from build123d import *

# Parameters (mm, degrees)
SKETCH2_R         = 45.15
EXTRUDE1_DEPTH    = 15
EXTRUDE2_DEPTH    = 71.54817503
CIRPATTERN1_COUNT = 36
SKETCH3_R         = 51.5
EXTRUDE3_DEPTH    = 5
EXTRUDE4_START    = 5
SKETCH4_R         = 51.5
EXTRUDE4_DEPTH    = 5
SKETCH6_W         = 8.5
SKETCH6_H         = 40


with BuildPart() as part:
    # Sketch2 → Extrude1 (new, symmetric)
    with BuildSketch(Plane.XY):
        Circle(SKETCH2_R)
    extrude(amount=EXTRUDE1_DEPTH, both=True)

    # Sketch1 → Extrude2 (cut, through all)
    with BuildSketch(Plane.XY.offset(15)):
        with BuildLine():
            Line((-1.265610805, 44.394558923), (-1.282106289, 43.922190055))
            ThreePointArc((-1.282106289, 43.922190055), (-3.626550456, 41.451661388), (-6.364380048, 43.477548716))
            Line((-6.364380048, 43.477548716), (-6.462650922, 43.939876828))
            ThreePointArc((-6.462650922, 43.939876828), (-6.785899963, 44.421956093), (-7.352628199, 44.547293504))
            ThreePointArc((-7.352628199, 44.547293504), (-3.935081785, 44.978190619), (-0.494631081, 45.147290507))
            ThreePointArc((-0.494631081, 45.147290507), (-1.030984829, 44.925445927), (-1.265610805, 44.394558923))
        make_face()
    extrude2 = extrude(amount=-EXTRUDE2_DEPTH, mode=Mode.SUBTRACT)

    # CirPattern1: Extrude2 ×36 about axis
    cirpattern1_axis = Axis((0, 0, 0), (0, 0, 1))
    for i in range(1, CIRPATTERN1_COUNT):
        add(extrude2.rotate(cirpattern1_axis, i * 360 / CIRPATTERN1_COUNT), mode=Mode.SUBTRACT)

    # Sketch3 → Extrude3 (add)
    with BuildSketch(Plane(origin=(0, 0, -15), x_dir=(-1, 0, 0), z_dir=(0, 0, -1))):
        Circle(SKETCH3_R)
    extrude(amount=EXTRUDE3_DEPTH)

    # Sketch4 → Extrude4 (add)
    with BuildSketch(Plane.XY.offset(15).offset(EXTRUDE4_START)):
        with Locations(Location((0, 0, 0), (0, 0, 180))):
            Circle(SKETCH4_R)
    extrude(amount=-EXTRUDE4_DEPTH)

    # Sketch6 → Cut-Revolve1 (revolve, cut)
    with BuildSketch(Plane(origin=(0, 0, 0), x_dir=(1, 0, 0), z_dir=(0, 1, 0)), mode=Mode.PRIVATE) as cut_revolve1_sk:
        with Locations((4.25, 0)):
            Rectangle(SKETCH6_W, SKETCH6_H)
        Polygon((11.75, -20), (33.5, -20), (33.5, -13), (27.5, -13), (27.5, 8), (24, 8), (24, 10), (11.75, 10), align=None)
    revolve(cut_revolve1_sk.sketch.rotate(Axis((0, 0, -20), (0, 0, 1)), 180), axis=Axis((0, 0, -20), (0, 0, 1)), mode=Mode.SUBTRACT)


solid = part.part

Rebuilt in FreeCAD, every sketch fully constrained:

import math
import FreeCAD as App
import Part
import Sketcher
from FreeCAD import Vector
Q = App.Units.Quantity


def add_polygon(sketch, points):
    """Adds a closed chain of lines whose ends are joined by coincident constraints."""
    first, n = sketch.GeometryCount, len(points)
    for a, b in zip(points, points[1:] + points[:1]):
        sketch.addGeometry(Part.LineSegment(App.Vector(*a, 0), App.Vector(*b, 0)), False)
    for i in range(n):
        sketch.addConstraint(Sketcher.Constraint("Coincident", first + i, 2, first + (i + 1) % n, 1))

doc = App.newDocument("Part")
params = doc.addObject("Spreadsheet::Sheet", "Params")
for row, (alias, value) in enumerate([
    ("sketch1_diameter", "90.3 mm"),
    ("pad1_length", "30 mm"),
    ("sketch2_radius", "0.78 mm"),
    ("sketch2_radius2", "45.15 mm"),
    ("sketch2_radius3", "2.57 mm"),
    ("sketch3_diameter", "103 mm"),
    ("pad2_length", "5 mm"),
    ("sketch4_diameter", "103 mm"),
    ("pad3_length", "5 mm"),
    ("sketch5_width", "6 mm"),
    ("sketch5_height", "40 mm"),
    ("sketch5_height2", "7 mm"),
    ("sketch5_height3", "21 mm"),
    ("sketch5_height4", "2 mm"),
    ("groove_angle", "360 deg"),
], start=1):
    params.set(f"A{row}", alias)
    params.set(f"B{row}", "=" + value)
    params.setAlias(f"B{row}", alias)

body = doc.addObject("PartDesign::Body", "Body")

sketch1 = body.newObject("Sketcher::SketchObject", "Sketch")
sketch1.AttachmentSupport = (doc.getObject("XY_Plane"), [""])
sketch1.MapMode = "FlatFace"
sketch1.addGeometry(Part.Circle(Vector(0, 0, 0), Vector(0, 0, 1), 45.15), False)
sketch1.addConstraint([
    Sketcher.Constraint("Coincident", 0, 3, -1, 1),
    Sketcher.Constraint("Diameter", 0, 90.3),
])
sketch1.setExpression("Constraints[1]", "Params.sketch1_diameter")
pad1 = body.newObject("PartDesign::Pad", "Pad")
pad1.Profile = sketch1
pad1.setExpression("Length", "Params.pad1_length")
pad1.Midplane = True

sketch2 = body.newObject("Sketcher::SketchObject", "Sketch001")
sketch2.AttachmentSupport = (doc.getObject("XY_Plane"), [""])
sketch2.MapMode = "FlatFace"
sketch2.AttachmentOffset = App.Placement(Vector(0, 0, 15), App.Rotation())
sketch2.addGeometry([
    Part.LineSegment(Vector(-1.282106, 43.92219, 0), Vector(-1.265611, 44.394559, 0)),
    Part.ArcOfCircle(Part.Circle(Vector(-0.486086, 44.367337, 0), Vector(0, 0, 1), 0.78), math.radians(90.627704), math.radians(178)),
    Part.ArcOfCircle(Part.Circle(Vector(0, 0, 0), Vector(0, 0, 1), 45.15), math.radians(90.627704), math.radians(99.372296)),
    Part.ArcOfCircle(Part.Circle(Vector(-7.225606, 43.777706, 0), Vector(0, 0, 1), 0.78), math.radians(12), math.radians(99.372296)),
    Part.LineSegment(Vector(-6.462651, 43.939877, 0), Vector(-6.36438, 43.477549, 0)),
    Part.ArcOfCircle(Part.Circle(Vector(-3.850541, 44.011882, 0), Vector(0, 0, 1), 2.57), math.radians(-168), math.radians(-2)),
], False)
sketch2.addConstraint([
    Sketcher.Constraint("Tangent", 0, 2, 1, 2),
    Sketcher.Constraint("Tangent", 1, 1, 2, 1),
    Sketcher.Constraint("Tangent", 2, 2, 3, 2),
    Sketcher.Constraint("Tangent", 3, 1, 4, 1),
    Sketcher.Constraint("Tangent", 4, 2, 5, 1),
    Sketcher.Constraint("Tangent", 5, 2, 0, 1),
    Sketcher.Constraint("Coincident", 2, 3, -1, 1),
    Sketcher.Constraint("Equal", 1, 3),
    Sketcher.Constraint("Equal", 0, 4),
    Sketcher.Constraint("Angle", 0, Q("88 deg")),
    Sketcher.Constraint("Angle", 4, Q("-78 deg")),
    Sketcher.Constraint("Radius", 1, 0.78),
    Sketcher.Constraint("Radius", 2, 45.15),
    Sketcher.Constraint("Radius", 5, 2.57),
    Sketcher.Constraint("DistanceY", 5, 2, 1, 1, 1.2251),
])
sketch2.setExpression("Constraints[11]", "Params.sketch2_radius")
sketch2.setExpression("Constraints[12]", "Params.sketch2_radius2")
sketch2.setExpression("Constraints[13]", "Params.sketch2_radius3")
pocket1 = body.newObject("PartDesign::Pocket", "Pocket")
pocket1.Profile = sketch2
pocket1.Type = "ThroughAll"
doc.recompute()

polarpattern = body.newObject("PartDesign::PolarPattern", "PolarPattern")
polarpattern.Originals = [pocket1]
polarpattern.Axis = (doc.getObject("Z_Axis"), [""])
polarpattern.Angle = 360
polarpattern.Occurrences = 36
body.Tip = polarpattern

sketch3 = body.newObject("Sketcher::SketchObject", "Sketch002")
sketch3.AttachmentSupport = (doc.getObject("XY_Plane"), [""])
sketch3.MapMode = "FlatFace"
sketch3.AttachmentOffset = App.Placement(Vector(0, 0, -15), App.Rotation())
sketch3.addGeometry(Part.Circle(Vector(0, 0, 0), Vector(0, 0, 1), 51.5), False)
sketch3.addConstraint([
    Sketcher.Constraint("Coincident", 0, 3, -1, 1),
    Sketcher.Constraint("Diameter", 0, 103.0),
])
sketch3.setExpression("Constraints[1]", "Params.sketch3_diameter")
pad2 = body.newObject("PartDesign::Pad", "Pad001")
pad2.Profile = sketch3
pad2.setExpression("Length", "Params.pad2_length")
pad2.Reversed = True

sketch4 = body.newObject("Sketcher::SketchObject", "Sketch003")
sketch4.AttachmentSupport = (doc.getObject("XY_Plane"), [""])
sketch4.MapMode = "FlatFace"
sketch4.AttachmentOffset = App.Placement(Vector(0, 0, 20), App.Rotation())
sketch4.addGeometry(Part.Circle(Vector(0, 0, 0), Vector(0, 0, 1), 51.5), False)
sketch4.addConstraint([
    Sketcher.Constraint("Coincident", 0, 3, -1, 1),
    Sketcher.Constraint("Diameter", 0, 103.0),
])
sketch4.setExpression("Constraints[1]", "Params.sketch4_diameter")
pad3 = body.newObject("PartDesign::Pad", "Pad002")
pad3.Profile = sketch4
pad3.setExpression("Length", "Params.pad3_length")
pad3.Reversed = True

sketch5 = body.newObject("Sketcher::SketchObject", "Sketch004")
sketch5.AttachmentSupport = (doc.getObject("XZ_Plane"), [""])
sketch5.MapMode = "FlatFace"
add_polygon(sketch5, [(0, -20), (0, 20), (8.5, 20), (8.5, -20)])
add_polygon(sketch5, [(11.75, 20), (33.5, 20), (33.5, 13), (27.5, 13), (27.5, -8), (24, -8), (24, -10), (11.75, -10)])
sketch5.addConstraint([
    Sketcher.Constraint("Vertical", 0),
    Sketcher.Constraint("Horizontal", 1),
    Sketcher.Constraint("Vertical", 2),
    Sketcher.Constraint("Horizontal", 3),
    Sketcher.Constraint("Horizontal", 4),
    Sketcher.Constraint("Vertical", 5),
    Sketcher.Constraint("Horizontal", 6),
    Sketcher.Constraint("Vertical", 7),
    Sketcher.Constraint("Horizontal", 8),
    Sketcher.Constraint("Vertical", 9),
    Sketcher.Constraint("Horizontal", 10),
    Sketcher.Constraint("Vertical", 11),
    Sketcher.Constraint("Symmetric", 0, 2, 3, 2, -1, 1),
    Sketcher.Constraint("Horizontal", 1, 2, 4, 2),
    Sketcher.Constraint("DistanceX", 6, 2, 6, 1, 6.0),
    Sketcher.Constraint("DistanceY", 0, 1, 0, 2, 40.0),
    Sketcher.Constraint("DistanceY", 5, 2, 5, 1, 7.0),
    Sketcher.Constraint("DistanceY", 7, 2, 7, 1, 21.0),
    Sketcher.Constraint("DistanceY", 9, 2, 9, 1, 2.0),
    Sketcher.Constraint("DistanceX", 1, 1, 1, 2, 8.5),
    Sketcher.Constraint("DistanceX", 8, 2, 8, 1, 3.5),
    Sketcher.Constraint("DistanceX", -1, 1, 8, 2, 24.0),
    Sketcher.Constraint("DistanceX", 4, 1, 4, 2, 21.75),
])
sketch5.setExpression("Constraints[26]", "Params.sketch5_width")
sketch5.setExpression("Constraints[27]", "Params.sketch5_height")
sketch5.setExpression("Constraints[28]", "Params.sketch5_height2")
sketch5.setExpression("Constraints[29]", "Params.sketch5_height3")
sketch5.setExpression("Constraints[30]", "Params.sketch5_height4")
groove = body.newObject("PartDesign::Groove", "Groove")
groove.Profile = sketch5
groove.ReferenceAxis = (sketch5, ["V_Axis"])
groove.setExpression("Angle", "Params.groove_angle")

doc.recompute()
